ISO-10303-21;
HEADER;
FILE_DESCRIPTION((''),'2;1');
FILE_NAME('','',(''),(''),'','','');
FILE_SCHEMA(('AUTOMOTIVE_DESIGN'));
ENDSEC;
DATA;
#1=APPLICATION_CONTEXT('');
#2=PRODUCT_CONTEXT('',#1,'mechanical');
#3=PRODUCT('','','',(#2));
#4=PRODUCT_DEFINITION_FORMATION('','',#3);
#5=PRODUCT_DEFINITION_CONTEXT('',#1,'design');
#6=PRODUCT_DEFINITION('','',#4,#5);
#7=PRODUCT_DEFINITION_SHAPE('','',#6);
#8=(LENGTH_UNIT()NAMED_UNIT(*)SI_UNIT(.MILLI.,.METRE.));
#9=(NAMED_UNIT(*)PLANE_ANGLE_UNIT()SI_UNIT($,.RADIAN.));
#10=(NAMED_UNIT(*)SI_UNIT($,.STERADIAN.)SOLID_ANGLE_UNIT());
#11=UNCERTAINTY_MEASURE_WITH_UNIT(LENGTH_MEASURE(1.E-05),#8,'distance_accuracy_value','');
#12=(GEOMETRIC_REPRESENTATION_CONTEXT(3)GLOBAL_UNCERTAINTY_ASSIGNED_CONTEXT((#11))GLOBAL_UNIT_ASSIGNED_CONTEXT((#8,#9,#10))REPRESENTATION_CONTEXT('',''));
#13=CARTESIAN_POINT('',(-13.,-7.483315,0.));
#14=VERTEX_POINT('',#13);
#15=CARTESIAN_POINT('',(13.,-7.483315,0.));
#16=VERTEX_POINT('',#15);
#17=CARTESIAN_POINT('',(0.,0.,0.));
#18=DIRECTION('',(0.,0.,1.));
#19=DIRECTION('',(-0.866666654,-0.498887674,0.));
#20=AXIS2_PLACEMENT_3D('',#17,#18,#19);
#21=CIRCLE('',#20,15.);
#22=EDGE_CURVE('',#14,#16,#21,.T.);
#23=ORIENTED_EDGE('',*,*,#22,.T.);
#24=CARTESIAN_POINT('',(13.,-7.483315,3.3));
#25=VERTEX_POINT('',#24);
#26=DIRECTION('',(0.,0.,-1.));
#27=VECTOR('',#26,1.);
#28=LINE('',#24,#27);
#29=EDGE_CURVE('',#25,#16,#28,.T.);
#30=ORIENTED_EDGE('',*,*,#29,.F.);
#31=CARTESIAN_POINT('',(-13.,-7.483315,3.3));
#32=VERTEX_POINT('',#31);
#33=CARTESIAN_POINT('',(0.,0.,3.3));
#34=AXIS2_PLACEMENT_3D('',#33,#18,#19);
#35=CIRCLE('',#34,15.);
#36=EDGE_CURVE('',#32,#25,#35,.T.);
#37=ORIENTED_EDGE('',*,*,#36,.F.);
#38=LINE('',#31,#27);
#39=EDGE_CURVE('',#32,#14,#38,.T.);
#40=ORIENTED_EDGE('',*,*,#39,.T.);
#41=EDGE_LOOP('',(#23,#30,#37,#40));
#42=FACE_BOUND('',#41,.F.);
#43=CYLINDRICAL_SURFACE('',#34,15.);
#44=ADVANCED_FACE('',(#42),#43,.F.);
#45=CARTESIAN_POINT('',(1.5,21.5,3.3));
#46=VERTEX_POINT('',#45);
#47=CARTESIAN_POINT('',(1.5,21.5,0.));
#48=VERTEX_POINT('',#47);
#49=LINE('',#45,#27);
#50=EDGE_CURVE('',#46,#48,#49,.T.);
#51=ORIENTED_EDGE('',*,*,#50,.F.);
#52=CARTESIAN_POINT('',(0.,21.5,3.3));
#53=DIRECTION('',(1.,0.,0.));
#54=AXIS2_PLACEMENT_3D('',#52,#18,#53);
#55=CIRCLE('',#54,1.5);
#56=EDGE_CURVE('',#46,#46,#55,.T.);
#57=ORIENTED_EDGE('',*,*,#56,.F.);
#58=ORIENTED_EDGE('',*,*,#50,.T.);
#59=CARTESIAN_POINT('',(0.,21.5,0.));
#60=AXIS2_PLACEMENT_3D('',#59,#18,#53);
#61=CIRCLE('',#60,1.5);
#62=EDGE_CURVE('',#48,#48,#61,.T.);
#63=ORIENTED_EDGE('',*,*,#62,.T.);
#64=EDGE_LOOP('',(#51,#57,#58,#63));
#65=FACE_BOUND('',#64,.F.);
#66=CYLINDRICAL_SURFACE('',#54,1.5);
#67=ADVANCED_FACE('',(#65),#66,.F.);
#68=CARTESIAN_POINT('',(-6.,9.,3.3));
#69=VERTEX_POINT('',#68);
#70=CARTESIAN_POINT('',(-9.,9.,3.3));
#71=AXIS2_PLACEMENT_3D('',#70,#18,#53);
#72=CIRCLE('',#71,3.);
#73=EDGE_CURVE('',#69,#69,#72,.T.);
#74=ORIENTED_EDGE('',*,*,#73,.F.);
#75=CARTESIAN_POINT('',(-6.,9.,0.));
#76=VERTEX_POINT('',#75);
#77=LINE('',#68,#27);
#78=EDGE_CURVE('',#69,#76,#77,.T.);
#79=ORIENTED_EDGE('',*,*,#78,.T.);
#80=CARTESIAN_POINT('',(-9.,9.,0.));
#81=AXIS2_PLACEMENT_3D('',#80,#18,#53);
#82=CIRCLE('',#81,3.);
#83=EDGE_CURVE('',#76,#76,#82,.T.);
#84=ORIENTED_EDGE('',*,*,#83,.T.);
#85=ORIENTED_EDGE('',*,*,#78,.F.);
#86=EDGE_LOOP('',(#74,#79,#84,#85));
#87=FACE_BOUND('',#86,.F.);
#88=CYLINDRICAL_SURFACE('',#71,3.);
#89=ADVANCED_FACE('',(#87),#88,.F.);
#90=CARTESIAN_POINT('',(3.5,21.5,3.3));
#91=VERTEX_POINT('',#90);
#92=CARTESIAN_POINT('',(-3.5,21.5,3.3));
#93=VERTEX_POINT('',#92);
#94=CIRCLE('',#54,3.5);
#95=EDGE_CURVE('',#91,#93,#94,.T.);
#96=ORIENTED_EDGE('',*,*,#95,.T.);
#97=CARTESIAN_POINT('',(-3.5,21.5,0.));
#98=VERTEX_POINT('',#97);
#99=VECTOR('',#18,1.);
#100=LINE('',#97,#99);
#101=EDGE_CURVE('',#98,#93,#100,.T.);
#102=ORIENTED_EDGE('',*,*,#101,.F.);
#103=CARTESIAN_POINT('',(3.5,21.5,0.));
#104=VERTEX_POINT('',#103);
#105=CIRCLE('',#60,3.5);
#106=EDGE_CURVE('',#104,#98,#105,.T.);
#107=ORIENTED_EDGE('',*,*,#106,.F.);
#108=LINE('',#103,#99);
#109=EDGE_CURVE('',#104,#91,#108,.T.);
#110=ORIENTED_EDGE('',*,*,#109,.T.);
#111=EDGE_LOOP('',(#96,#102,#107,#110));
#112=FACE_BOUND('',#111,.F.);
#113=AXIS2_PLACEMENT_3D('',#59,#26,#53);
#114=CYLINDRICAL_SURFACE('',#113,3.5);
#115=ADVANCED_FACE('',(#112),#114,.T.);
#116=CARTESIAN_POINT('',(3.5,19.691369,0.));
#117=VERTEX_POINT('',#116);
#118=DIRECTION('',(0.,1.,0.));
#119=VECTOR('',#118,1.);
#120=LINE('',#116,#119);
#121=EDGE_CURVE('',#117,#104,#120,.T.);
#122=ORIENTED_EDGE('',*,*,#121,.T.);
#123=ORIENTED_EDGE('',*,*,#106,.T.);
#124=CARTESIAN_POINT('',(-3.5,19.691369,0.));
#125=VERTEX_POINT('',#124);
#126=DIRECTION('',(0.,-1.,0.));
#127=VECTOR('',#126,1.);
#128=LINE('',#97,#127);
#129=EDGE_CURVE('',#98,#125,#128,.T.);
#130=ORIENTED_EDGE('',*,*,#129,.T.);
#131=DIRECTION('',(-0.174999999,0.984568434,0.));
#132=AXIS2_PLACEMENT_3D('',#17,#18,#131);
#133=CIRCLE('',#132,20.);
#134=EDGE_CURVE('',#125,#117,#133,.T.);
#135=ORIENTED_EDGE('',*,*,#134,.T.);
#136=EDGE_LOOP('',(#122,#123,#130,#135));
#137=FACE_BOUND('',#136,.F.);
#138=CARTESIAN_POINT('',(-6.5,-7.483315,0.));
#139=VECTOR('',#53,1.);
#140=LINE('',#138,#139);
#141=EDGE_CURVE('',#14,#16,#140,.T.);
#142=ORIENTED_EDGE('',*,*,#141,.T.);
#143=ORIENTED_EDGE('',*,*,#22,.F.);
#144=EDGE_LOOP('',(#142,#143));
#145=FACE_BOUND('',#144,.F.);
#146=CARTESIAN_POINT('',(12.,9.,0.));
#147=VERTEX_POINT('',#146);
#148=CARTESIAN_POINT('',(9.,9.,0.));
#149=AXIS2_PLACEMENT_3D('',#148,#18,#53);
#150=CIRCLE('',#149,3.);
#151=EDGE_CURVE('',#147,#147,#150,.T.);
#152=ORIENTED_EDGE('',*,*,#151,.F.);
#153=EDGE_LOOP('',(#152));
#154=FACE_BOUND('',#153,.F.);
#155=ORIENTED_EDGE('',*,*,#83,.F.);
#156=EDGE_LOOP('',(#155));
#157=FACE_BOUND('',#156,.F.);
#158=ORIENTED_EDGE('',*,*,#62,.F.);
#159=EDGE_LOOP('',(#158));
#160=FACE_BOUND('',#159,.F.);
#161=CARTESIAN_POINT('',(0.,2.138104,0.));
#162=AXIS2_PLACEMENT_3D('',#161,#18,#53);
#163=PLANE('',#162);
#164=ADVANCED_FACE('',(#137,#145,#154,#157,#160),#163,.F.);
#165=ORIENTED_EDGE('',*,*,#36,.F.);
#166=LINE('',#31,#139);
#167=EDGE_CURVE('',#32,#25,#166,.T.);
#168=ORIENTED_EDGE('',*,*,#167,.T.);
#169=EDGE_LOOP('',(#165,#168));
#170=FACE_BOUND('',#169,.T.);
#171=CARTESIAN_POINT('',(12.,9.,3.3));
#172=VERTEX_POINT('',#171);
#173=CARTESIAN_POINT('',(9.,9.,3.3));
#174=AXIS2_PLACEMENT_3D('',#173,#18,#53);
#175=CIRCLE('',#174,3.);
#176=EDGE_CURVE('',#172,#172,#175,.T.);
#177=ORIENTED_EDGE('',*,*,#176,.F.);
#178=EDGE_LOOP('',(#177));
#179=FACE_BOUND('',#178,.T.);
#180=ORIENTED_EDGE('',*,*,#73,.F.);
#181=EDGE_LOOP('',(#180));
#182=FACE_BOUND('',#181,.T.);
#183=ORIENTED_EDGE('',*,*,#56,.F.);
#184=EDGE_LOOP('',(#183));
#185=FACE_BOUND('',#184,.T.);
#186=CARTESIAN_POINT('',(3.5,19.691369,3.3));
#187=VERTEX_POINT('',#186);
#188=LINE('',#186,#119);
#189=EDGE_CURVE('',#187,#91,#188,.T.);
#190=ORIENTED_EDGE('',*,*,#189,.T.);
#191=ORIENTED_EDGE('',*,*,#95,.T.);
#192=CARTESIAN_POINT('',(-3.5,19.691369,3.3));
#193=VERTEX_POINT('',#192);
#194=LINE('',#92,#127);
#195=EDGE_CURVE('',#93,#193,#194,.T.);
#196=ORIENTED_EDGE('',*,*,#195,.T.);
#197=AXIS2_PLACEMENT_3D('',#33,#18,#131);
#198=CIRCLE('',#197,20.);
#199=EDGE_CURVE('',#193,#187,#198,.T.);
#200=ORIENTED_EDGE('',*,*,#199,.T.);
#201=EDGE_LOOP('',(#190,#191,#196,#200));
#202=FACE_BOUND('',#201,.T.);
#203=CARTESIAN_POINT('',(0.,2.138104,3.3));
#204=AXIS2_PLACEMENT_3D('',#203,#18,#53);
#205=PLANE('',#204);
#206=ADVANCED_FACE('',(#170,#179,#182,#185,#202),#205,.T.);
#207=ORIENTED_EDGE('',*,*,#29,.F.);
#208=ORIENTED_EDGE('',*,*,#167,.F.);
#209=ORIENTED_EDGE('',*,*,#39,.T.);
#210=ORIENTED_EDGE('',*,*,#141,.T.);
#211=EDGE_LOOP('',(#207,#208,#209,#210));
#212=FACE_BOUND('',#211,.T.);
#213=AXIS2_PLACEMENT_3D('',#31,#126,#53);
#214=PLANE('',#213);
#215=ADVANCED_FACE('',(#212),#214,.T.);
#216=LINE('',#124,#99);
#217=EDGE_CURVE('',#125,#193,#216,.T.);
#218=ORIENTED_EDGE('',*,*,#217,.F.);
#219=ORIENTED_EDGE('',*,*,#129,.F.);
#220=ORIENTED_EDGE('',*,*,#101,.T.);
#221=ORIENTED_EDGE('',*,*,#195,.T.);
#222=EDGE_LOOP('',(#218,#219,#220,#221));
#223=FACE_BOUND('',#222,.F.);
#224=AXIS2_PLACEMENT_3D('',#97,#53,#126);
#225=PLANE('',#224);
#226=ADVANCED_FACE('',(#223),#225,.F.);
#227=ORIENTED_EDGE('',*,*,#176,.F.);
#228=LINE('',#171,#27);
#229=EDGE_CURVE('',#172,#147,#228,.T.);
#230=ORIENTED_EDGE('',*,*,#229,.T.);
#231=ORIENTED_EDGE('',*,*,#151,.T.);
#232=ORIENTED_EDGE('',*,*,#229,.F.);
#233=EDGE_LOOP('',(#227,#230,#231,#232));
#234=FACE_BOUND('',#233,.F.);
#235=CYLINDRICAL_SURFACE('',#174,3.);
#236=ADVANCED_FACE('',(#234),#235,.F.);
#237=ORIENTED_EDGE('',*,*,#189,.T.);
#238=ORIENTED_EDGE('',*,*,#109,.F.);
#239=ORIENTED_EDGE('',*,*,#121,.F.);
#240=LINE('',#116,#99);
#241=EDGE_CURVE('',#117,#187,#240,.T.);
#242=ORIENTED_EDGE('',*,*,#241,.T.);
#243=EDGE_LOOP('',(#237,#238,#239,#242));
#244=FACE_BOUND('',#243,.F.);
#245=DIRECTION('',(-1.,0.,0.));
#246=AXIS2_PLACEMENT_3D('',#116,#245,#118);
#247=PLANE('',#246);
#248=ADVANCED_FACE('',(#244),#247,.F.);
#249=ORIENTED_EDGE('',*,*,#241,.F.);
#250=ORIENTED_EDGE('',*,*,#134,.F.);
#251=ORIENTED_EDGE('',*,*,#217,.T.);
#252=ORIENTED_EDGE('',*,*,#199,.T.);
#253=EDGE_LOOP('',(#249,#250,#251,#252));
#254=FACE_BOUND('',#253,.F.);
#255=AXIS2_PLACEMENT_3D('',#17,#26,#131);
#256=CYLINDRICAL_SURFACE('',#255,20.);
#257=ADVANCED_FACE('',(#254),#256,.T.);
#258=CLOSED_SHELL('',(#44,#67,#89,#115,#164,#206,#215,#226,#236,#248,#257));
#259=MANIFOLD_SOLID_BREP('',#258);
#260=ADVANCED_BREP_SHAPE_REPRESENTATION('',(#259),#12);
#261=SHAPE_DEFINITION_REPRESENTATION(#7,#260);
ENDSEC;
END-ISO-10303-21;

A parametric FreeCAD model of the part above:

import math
import FreeCAD as App
import Part
import Sketcher

doc = App.newDocument("Part")
body = doc.addObject("PartDesign::Body", "Body")

# Sketch on XY plane
sketch1 = body.newObject("Sketcher::SketchObject", "Sketch")
sketch1.AttachmentSupport = (doc.getObject("XY_Plane"), [""])
sketch1.MapMode = "FlatFace"
sketch1.addGeometry([
    Part.ArcOfCircle(Part.Circle(App.Vector(0, 21.5, 0), App.Vector(0, 0, 1), 3.5), math.radians(0), math.radians(180)),
    Part.LineSegment(App.Vector(-3.5, 21.5, 0), App.Vector(-3.5, 19.691369, 0)),
    Part.ArcOfCircle(Part.Circle(App.Vector(0, 0, 0), App.Vector(0, 0, 1), 20), math.radians(100.078658), math.radians(439.921342)),
    Part.LineSegment(App.Vector(3.5, 19.691369, 0), App.Vector(3.5, 21.5, 0)),
], False)
sketch1.addConstraint([
    Sketcher.Constraint("Tangent", 0, 2, 1, 1),
    Sketcher.Constraint("Coincident", 1, 2, 2, 1),
    Sketcher.Constraint("Coincident", 2, 2, 3, 1),
    Sketcher.Constraint("Tangent", 3, 2, 0, 1),
    Sketcher.Constraint("Vertical", 1),
    Sketcher.Constraint("Vertical", 3),
    Sketcher.Constraint("Coincident", 2, 3, -1, 1),
    Sketcher.Constraint("PointOnObject", 0, 3, -2),
    Sketcher.Constraint("Radius", 2, 20.0),
    Sketcher.Constraint("Radius", 0, 3.5),
    Sketcher.Constraint("DistanceY", -1, 1, 0, 3, 21.5),
])
pad1 = body.newObject("PartDesign::Pad", "Pad")
pad1.Profile = sketch1
pad1.Length = 3.3

# Sketch on XY plane
sketch2 = body.newObject("Sketcher::SketchObject", "Sketch001")
sketch2.AttachmentSupport = (doc.getObject("XY_Plane"), [""])
sketch2.MapMode = "FlatFace"
sketch2.AttachmentOffset = App.Placement(App.Vector(0, 0, 3.3), App.Rotation())
sketch2.addGeometry(Part.Circle(App.Vector(0, 21.5, 0), App.Vector(0, 0, 1), 1.5), False)
sketch2.addConstraint([
    Sketcher.Constraint("PointOnObject", 0, 3, -2),
    Sketcher.Constraint("Diameter", 0, 3.0),
    Sketcher.Constraint("DistanceY", -1, 1, 0, 3, 21.5),
])
pocket1 = body.newObject("PartDesign::Pocket", "Pocket")
pocket1.Profile = sketch2
pocket1.Type = "ThroughAll"

# Sketch on XY plane
sketch3 = body.newObject("Sketcher::SketchObject", "Sketch002")
sketch3.AttachmentSupport = (doc.getObject("XY_Plane"), [""])
sketch3.MapMode = "FlatFace"
sketch3.AttachmentOffset = App.Placement(App.Vector(0, 0, 3.3), App.Rotation())
sketch3.addGeometry([
    Part.Circle(App.Vector(-9, 9, 0), App.Vector(0, 0, 1), 3),
    Part.Circle(App.Vector(9, 9, 0), App.Vector(0, 0, 1), 3),
    Part.LineSegment(App.Vector(13, -7.483315, 0), App.Vector(-13, -7.483315, 0)),
    Part.ArcOfCircle(Part.Circle(App.Vector(0, 0, 0), App.Vector(0, 0, 1), 15), math.radians(-150.073564), math.radians(-29.926436)),
], False)
sketch3.addConstraint([
    Sketcher.Constraint("Coincident", 2, 1, 3, 2),
    Sketcher.Constraint("Coincident", 3, 1, 2, 2),
    Sketcher.Constraint("Horizontal", 2),
    Sketcher.Constraint("Coincident", 3, 3, -1, 1),
    Sketcher.Constraint("Equal", 0, 1),
    Sketcher.Constraint("Symmetric", 0, 3, 1, 3, -2),
    Sketcher.Constraint("Diameter", 0, 6.0),
    Sketcher.Constraint("Radius", 3, 15.0),
    Sketcher.Constraint("DistanceX", 2, 2, 2, 1, 26.0),
    Sketcher.Constraint("DistanceX", 0, 3, -1, 1, 9.0),
    Sketcher.Constraint("DistanceY", -1, 1, 0, 3, 9.0),
])
pocket2 = body.newObject("PartDesign::Pocket", "Pocket001")
pocket2.Profile = sketch3
pocket2.Type = "ThroughAll"

doc.recompute()
